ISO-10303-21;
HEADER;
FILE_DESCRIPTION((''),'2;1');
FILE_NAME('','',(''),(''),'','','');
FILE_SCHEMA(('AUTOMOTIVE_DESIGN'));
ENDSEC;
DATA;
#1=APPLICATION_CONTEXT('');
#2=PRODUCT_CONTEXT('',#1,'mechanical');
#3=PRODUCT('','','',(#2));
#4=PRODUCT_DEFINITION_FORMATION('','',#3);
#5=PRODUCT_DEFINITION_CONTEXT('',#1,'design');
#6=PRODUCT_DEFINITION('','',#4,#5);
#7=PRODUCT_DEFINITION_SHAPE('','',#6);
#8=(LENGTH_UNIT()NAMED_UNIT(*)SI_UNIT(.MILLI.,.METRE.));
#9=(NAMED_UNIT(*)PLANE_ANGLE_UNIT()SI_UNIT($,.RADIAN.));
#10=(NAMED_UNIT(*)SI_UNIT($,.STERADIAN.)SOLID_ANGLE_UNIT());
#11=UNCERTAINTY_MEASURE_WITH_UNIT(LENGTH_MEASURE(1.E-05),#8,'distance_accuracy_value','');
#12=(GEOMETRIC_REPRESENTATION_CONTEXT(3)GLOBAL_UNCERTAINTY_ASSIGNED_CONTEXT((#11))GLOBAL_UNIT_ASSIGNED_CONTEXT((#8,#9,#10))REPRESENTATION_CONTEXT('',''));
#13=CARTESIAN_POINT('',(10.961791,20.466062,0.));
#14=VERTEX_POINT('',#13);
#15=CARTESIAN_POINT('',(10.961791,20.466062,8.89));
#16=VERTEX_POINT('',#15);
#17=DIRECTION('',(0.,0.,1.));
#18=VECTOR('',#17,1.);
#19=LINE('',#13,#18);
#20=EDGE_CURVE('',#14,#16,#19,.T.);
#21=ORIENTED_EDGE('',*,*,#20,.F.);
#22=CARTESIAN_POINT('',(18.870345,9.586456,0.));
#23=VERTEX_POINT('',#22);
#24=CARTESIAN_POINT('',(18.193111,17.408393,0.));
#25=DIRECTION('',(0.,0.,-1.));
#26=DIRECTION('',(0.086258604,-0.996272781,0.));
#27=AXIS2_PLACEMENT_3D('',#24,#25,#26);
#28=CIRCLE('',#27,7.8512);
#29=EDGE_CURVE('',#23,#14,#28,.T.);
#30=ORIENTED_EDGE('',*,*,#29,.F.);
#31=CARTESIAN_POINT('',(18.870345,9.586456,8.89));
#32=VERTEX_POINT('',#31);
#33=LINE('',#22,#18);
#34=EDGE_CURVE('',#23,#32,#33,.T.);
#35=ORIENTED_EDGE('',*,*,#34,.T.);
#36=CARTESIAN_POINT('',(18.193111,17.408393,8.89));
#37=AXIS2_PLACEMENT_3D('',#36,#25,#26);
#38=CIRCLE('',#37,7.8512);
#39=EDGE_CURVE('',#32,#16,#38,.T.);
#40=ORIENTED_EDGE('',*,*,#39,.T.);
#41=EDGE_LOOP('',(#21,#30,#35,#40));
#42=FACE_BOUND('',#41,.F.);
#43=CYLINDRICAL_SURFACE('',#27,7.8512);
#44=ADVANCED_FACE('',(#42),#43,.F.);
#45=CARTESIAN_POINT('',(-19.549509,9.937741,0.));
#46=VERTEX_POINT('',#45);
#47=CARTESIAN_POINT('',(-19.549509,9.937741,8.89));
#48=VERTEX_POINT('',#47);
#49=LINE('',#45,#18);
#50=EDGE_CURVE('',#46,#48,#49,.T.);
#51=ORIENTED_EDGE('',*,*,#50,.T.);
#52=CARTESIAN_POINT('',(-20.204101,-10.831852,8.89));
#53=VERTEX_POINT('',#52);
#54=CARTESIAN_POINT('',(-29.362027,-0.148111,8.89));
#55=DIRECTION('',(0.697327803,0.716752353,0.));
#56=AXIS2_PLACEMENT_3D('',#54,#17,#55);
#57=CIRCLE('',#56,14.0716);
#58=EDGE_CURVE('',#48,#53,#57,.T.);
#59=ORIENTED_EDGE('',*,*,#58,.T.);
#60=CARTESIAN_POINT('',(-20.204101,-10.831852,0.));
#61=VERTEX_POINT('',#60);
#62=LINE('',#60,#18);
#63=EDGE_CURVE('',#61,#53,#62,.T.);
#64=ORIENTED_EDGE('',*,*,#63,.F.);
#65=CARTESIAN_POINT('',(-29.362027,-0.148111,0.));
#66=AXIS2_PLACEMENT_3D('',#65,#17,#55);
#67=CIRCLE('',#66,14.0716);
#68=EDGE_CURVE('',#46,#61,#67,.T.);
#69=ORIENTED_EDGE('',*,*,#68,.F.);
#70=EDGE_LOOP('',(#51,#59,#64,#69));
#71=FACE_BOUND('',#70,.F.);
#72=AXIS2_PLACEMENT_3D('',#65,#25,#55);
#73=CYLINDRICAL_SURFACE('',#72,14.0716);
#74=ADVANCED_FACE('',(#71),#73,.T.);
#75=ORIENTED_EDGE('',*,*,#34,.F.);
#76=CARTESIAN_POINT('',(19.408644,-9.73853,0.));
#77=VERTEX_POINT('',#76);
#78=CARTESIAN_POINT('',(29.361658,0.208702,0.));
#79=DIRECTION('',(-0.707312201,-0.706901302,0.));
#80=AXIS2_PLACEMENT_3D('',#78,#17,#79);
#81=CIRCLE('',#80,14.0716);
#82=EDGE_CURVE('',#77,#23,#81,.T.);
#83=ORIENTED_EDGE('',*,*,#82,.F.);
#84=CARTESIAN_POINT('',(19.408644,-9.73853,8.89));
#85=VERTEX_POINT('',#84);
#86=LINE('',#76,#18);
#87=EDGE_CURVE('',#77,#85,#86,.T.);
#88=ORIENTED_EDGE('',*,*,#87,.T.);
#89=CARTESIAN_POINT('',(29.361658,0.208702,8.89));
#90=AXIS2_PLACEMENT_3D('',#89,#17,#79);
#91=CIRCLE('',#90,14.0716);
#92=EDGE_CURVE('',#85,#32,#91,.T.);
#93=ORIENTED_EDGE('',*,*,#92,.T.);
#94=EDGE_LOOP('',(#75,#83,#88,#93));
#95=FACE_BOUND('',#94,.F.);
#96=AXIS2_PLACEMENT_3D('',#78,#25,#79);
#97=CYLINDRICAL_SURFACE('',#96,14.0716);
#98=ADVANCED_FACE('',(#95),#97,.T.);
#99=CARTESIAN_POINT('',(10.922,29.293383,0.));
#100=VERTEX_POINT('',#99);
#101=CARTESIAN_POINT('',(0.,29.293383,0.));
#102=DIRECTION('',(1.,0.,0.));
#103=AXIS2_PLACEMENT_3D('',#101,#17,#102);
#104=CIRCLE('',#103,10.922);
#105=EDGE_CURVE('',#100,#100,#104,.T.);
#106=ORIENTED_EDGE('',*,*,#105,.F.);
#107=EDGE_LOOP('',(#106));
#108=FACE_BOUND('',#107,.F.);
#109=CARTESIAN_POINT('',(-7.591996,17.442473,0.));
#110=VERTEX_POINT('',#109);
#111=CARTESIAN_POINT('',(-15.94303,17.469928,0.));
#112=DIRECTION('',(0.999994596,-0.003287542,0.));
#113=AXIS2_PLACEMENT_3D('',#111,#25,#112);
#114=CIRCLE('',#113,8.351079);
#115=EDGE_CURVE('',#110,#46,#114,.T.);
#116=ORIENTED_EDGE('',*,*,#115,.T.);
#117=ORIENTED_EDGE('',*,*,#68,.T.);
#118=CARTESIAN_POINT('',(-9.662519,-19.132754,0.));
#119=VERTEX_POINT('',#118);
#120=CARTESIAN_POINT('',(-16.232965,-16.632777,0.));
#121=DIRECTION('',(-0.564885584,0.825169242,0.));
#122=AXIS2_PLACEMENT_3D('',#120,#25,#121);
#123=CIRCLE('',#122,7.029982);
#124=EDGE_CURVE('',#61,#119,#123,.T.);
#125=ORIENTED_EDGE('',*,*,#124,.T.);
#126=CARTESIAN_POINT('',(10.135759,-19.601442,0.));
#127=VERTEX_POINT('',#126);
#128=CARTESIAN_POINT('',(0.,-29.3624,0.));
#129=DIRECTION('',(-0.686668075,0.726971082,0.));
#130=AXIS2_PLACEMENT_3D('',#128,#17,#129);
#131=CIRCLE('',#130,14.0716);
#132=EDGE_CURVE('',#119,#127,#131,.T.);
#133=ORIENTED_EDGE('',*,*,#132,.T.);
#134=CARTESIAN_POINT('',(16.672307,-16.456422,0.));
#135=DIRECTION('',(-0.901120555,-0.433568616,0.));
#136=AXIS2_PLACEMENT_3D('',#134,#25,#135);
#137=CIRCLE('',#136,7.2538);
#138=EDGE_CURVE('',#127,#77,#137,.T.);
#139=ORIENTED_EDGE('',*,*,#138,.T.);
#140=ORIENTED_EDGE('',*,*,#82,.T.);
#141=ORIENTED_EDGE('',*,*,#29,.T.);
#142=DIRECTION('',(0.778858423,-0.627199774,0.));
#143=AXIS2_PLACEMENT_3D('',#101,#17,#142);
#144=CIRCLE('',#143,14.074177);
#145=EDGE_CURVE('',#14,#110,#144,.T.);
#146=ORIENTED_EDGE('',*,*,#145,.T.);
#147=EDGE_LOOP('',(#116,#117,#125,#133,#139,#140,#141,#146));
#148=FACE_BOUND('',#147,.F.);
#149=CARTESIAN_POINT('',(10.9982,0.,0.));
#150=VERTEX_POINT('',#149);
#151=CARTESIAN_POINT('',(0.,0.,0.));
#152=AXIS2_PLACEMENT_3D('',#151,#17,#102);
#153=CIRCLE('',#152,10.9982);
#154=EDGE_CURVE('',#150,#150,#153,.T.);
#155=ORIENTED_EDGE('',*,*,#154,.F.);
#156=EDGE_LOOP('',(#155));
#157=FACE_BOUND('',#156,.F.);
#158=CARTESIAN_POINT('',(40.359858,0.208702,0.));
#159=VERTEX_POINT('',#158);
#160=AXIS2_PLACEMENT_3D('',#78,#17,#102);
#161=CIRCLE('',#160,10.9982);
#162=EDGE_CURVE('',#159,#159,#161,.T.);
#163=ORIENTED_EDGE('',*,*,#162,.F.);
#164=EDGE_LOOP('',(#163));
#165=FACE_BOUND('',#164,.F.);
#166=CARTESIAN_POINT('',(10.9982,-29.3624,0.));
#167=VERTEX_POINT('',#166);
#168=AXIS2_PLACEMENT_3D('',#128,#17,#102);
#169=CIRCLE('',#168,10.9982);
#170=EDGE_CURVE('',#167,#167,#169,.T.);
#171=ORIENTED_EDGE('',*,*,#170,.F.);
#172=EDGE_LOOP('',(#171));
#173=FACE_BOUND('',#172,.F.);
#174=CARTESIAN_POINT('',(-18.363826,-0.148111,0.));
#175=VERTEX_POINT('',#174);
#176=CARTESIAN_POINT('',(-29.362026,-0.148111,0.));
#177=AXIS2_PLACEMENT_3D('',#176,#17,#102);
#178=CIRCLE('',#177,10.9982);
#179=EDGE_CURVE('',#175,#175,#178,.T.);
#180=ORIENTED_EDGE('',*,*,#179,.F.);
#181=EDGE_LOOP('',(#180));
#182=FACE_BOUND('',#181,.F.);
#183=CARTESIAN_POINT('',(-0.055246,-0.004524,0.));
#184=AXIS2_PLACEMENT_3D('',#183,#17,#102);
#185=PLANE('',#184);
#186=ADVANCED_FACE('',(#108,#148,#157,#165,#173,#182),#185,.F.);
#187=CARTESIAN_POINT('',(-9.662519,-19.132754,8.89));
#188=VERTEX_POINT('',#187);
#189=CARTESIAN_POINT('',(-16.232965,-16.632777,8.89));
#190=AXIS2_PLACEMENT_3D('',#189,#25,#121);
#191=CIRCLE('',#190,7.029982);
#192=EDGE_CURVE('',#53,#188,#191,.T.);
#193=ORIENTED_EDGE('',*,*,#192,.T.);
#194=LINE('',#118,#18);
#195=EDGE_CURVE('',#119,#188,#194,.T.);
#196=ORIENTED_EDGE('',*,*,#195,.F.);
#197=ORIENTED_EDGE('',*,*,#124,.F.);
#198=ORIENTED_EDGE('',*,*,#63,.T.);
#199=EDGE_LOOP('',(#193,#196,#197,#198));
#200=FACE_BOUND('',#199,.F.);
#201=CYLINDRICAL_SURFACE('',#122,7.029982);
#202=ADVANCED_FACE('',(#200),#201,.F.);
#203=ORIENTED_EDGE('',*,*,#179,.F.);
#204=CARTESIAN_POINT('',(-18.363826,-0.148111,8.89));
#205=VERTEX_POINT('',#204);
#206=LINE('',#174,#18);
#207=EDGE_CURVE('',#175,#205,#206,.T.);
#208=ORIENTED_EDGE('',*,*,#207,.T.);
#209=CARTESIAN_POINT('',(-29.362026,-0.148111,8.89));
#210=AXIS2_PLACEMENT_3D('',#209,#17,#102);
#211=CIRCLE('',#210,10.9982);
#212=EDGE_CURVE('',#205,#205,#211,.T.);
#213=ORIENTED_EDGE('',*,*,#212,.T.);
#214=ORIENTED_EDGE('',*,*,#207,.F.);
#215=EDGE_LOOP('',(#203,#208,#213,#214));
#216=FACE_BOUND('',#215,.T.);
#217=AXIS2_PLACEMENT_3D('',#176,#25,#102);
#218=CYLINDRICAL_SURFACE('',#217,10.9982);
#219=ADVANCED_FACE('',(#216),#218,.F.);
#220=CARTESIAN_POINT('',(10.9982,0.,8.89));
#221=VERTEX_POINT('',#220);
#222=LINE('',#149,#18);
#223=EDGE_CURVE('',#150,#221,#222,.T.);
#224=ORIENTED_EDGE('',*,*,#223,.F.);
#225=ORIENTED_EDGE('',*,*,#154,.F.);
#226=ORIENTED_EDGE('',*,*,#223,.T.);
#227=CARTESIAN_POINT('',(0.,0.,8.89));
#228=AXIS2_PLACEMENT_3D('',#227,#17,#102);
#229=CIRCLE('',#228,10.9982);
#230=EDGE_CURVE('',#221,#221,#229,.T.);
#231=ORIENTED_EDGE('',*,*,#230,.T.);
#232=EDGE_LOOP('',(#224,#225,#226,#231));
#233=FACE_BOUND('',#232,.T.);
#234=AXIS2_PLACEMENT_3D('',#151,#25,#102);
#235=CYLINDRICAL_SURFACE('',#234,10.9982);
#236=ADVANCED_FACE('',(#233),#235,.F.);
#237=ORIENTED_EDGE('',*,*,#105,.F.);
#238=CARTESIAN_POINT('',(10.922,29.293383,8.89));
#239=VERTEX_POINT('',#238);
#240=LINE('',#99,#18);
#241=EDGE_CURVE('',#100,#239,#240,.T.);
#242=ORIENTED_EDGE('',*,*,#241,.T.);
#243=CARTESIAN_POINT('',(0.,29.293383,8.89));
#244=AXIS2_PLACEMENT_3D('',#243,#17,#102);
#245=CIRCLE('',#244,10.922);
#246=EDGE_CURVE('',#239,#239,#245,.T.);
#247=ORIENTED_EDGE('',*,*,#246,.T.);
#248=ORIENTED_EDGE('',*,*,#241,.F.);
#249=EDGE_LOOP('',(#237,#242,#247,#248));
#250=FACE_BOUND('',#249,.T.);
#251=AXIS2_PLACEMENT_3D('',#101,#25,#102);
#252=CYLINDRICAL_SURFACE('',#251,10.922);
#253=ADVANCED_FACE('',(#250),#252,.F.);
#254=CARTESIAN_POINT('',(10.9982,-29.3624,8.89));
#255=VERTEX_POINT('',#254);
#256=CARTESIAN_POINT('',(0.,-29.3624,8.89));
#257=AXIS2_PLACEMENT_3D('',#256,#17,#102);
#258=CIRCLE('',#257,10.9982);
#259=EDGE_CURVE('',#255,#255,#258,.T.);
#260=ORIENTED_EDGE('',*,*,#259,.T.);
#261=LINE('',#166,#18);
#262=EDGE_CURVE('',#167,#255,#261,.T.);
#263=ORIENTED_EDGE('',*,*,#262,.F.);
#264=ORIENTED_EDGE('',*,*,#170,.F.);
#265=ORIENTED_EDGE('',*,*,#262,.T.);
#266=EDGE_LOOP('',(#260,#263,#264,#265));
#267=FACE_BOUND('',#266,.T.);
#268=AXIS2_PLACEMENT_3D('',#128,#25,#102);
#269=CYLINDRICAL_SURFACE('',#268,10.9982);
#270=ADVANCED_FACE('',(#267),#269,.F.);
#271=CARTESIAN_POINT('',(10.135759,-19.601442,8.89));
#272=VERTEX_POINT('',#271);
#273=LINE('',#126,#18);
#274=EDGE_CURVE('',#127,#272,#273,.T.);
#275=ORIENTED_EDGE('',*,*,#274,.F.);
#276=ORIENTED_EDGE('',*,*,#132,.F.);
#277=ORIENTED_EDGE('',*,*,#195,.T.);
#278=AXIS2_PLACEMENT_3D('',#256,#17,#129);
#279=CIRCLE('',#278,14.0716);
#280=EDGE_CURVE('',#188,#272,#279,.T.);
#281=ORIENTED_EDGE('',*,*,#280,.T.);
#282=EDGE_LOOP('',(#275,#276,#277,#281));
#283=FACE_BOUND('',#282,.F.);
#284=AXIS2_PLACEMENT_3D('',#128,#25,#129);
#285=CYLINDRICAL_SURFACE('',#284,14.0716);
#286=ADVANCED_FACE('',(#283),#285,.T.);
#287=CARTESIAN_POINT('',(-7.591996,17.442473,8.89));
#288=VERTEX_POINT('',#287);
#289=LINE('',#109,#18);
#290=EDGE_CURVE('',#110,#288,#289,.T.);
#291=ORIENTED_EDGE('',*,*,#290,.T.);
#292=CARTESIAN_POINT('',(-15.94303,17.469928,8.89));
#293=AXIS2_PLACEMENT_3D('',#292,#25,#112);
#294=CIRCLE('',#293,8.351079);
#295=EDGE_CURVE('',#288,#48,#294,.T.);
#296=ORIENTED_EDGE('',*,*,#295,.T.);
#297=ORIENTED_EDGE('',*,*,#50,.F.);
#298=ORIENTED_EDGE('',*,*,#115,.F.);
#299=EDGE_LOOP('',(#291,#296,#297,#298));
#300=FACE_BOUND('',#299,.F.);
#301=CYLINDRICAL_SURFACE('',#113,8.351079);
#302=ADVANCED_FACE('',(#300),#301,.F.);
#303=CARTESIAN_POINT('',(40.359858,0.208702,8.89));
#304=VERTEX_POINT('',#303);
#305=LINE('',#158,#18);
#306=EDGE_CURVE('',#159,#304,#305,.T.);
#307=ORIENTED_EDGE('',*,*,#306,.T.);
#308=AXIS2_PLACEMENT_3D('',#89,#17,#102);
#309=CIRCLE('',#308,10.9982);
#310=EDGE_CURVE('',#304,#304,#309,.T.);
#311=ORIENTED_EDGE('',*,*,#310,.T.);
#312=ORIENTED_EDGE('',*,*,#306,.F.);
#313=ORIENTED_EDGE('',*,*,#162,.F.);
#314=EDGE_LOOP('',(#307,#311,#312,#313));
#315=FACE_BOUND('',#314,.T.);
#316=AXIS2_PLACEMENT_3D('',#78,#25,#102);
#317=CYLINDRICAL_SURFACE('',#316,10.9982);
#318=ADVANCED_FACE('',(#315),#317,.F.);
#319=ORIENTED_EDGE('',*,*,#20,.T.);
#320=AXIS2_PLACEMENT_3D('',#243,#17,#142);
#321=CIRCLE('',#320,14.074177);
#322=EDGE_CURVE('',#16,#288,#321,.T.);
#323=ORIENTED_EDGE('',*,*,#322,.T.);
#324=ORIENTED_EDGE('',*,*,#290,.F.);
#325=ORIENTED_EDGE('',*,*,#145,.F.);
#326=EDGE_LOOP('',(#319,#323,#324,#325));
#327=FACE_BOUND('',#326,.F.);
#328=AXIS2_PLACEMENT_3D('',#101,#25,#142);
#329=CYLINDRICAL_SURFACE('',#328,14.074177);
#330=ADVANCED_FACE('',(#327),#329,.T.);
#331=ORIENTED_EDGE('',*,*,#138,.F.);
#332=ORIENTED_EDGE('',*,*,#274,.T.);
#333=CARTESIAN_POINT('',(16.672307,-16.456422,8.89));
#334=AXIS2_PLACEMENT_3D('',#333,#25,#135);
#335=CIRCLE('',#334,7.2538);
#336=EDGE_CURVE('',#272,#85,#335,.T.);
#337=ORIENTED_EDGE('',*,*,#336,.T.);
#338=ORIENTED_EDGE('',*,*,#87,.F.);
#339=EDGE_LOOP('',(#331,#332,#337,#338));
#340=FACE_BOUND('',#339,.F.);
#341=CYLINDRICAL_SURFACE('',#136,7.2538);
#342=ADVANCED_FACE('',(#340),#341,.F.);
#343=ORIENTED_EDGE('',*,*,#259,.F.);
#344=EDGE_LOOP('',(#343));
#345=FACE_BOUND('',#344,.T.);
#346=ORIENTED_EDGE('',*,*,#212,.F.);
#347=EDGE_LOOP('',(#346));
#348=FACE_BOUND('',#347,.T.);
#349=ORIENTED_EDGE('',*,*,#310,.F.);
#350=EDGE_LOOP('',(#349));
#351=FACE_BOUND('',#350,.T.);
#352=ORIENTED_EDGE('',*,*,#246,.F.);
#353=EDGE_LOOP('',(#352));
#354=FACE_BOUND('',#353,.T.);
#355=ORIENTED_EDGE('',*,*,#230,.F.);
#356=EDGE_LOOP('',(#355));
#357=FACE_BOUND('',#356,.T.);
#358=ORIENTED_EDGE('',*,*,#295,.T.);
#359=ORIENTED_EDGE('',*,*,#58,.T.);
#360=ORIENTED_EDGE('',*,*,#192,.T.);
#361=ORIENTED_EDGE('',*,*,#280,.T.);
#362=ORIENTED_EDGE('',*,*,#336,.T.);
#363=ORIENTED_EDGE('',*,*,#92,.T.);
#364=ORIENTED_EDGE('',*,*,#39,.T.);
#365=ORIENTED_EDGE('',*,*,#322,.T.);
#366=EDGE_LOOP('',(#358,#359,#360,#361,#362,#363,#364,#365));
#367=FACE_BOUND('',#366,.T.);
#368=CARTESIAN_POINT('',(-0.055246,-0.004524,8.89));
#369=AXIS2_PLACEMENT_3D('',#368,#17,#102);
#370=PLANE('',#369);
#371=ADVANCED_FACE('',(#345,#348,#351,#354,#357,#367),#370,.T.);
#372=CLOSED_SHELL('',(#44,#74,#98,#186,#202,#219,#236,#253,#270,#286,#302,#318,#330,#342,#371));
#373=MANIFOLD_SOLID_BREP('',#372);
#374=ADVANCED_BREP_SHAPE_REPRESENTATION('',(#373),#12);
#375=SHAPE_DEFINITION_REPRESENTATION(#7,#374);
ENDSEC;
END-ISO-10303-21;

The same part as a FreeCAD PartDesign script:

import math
import FreeCAD as App
import Part
import Sketcher

V = App.Vector
Q = App.Units.Quantity

doc = App.newDocument("Part")
params = doc.addObject("Spreadsheet::Sheet", "Params")
for row, (alias, value) in enumerate([
    ("sketch1_diameter", "0.86 in"),
    ("sketch1_diameter2", "0.866 in"),
    ("sketch1_radius", "0.554 in"),
    ("pad1_length", "0.35 in"),
], start=1):
    params.set(f"A{row}", alias)
    params.set(f"B{row}", "=" + value)
    params.setAlias(f"B{row}", alias)

body = doc.addObject("PartDesign::Body", "Body")

sketch1 = body.newObject("Sketcher::SketchObject", "Sketch")
sketch1.AttachmentSupport = (doc.getObject("XY_Plane"), [""])
sketch1.MapMode = "FlatFace"
sketch1.addGeometry(Part.ArcOfCircle(Part.Circle(V(18, 17, 0), V(0, 0, 1), 8), math.radians(157), math.radians(275)), False)
sketch1.addGeometry(Part.ArcOfCircle(Part.Circle(V(0, 29, 0), V(0, 0, 1), 14), math.radians(-39), math.radians(237)), False)
sketch1.addGeometry(Part.ArcOfCircle(Part.Circle(V(-16, 17, 0), V(0, 0, 1), 8), math.radians(-116), math.radians(0)), False)
sketch1.addGeometry(Part.ArcOfCircle(Part.Circle(V(-29, 0, 0), V(0, 0, 1), 14), math.radians(46), math.radians(311)), False)
sketch1.addGeometry(Part.ArcOfCircle(Part.Circle(V(-16, -17, 0), V(0, 0, 1), 7), math.radians(-21), math.radians(124)), False)
sketch1.addGeometry(Part.ArcOfCircle(Part.Circle(V(0, -29, 0), V(0, 0, 1), 14), math.radians(133), math.radians(404)), False)
sketch1.addGeometry(Part.ArcOfCircle(Part.Circle(V(17, -16, 0), V(0, 0, 1), 7), math.radians(68), math.radians(206)), False)
sketch1.addGeometry(Part.ArcOfCircle(Part.Circle(V(29, 0, 0), V(0, 0, 1), 14), math.radians(-135), math.radians(138)), False)
sketch1.addGeometry(Part.Circle(V(-29, 0, 0), V(0, 0, 1), 11), False)
sketch1.addGeometry(Part.Circle(V(0, -29, 0), V(0, 0, 1), 11), False)
sketch1.addGeometry(Part.Circle(V(0, 0, 0), V(0, 0, 1), 11), False)
sketch1.addGeometry(Part.Circle(V(29, 0, 0), V(0, 0, 1), 11), False)
sketch1.addGeometry(Part.Circle(V(0, 29, 0), V(0, 0, 1), 11), False)
sketch1.addConstraint(Sketcher.Constraint("Coincident", 0, 1, 1, 1))
sketch1.addConstraint(Sketcher.Constraint("Coincident", 1, 2, 2, 2))
sketch1.addConstraint(Sketcher.Constraint("Coincident", 2, 1, 3, 1))
sketch1.addConstraint(Sketcher.Constraint("Coincident", 3, 2, 4, 2))
sketch1.addConstraint(Sketcher.Constraint("Coincident", 4, 1, 5, 1))
sketch1.addConstraint(Sketcher.Constraint("Coincident", 5, 2, 6, 2))
sketch1.addConstraint(Sketcher.Constraint("Coincident", 6, 1, 7, 1))
sketch1.addConstraint(Sketcher.Constraint("Coincident", 7, 2, 0, 2))
sketch1.addConstraint(Sketcher.Constraint("Coincident", 10, 3, -1, 1))
sketch1.addConstraint(Sketcher.Constraint("Coincident", 8, 3, 3, 3))
sketch1.addConstraint(Sketcher.Constraint("Coincident", 9, 3, 5, 3))
sketch1.addConstraint(Sketcher.Constraint("Coincident", 11, 3, 7, 3))
sketch1.addConstraint(Sketcher.Constraint("Coincident", 12, 3, 1, 3))
sketch1.addConstraint(Sketcher.Constraint("Equal", 3, 5))
sketch1.addConstraint(Sketcher.Constraint("Equal", 5, 7))
sketch1.addConstraint(Sketcher.Constraint("Equal", 8, 9))
sketch1.addConstraint(Sketcher.Constraint("Equal", 9, 10))
sketch1.addConstraint(Sketcher.Constraint("Equal", 10, 11))
sketch1.addConstraint(Sketcher.Constraint("PointOnObject", 1, 3, -2))
sketch1.addConstraint(Sketcher.Constraint("PointOnObject", 5, 3, -2))
sketch1.addConstraint(Sketcher.Constraint("Diameter", 12, Q("0.86 in")))
sketch1.addConstraint(Sketcher.Constraint("Diameter", 8, Q("0.866 in")))
sketch1.addConstraint(Sketcher.Constraint("Radius", 3, Q("0.554 in")))
sketch1.addConstraint(Sketcher.Constraint("Radius", 0, Q("7.8512 mm")))
sketch1.addConstraint(Sketcher.Constraint("Radius", 6, Q("7.2538 mm")))
sketch1.addConstraint(Sketcher.Constraint("DistanceY", 5, 3, -1, 1, Q("1.156 in")))
sketch1.addConstraint(Sketcher.Constraint("Radius", 2, Q("8.351079 mm")))
sketch1.addConstraint(Sketcher.Constraint("Radius", 1, Q("14.074177 mm")))
sketch1.addConstraint(Sketcher.Constraint("Radius", 4, Q("7.029982 mm")))
sketch1.addConstraint(Sketcher.Constraint("DistanceX", 3, 2, -1, 1, Q("20.204101 mm")))
sketch1.addConstraint(Sketcher.Constraint("DistanceY", 4, 1, 3, 2, Q("8.300902 mm")))
sketch1.addConstraint(Sketcher.Constraint("DistanceX", 7, 2, 6, 1, Q("0.538299 mm")))
sketch1.addConstraint(Sketcher.Constraint("DistanceX", -1, 1, 0, 3, Q("18.193111 mm")))
sketch1.addConstraint(Sketcher.Constraint("DistanceX", 2, 3, -1, 1, Q("15.94303 mm")))
sketch1.addConstraint(Sketcher.Constraint("DistanceY", 3, 3, -1, 1, Q("0.148111 mm")))
sketch1.addConstraint(Sketcher.Constraint("DistanceX", -1, 1, 7, 3, Q("29.361658 mm")))
sketch1.addConstraint(Sketcher.Constraint("DistanceX", -1, 1, 0, 1, Q("10.961791 mm")))
sketch1.addConstraint(Sketcher.Constraint("DistanceX", 2, 1, -1, 1, Q("19.549509 mm")))
sketch1.addConstraint(Sketcher.Constraint("DistanceY", -1, 1, 2, 1, Q("9.937741 mm")))
sketch1.addConstraint(Sketcher.Constraint("DistanceX", -1, 1, 5, 2, Q("10.135759 mm")))
sketch1.addConstraint(Sketcher.Constraint("DistanceY", 6, 1, -1, 1, Q("9.73853 mm")))
sketch1.addConstraint(Sketcher.Constraint("DistanceY", 4, 3, 0, 3, Q("34.04117 mm")))
sketch1.setExpression("Constraints[20]", "Params.sketch1_diameter")
sketch1.setExpression("Constraints[21]", "Params.sketch1_diameter2")
sketch1.setExpression("Constraints[22]", "Params.sketch1_radius")
pad1 = body.newObject("PartDesign::Pad", "Pad")
pad1.Profile = sketch1
pad1.setExpression("Length", "Params.pad1_length")

doc.recompute()
